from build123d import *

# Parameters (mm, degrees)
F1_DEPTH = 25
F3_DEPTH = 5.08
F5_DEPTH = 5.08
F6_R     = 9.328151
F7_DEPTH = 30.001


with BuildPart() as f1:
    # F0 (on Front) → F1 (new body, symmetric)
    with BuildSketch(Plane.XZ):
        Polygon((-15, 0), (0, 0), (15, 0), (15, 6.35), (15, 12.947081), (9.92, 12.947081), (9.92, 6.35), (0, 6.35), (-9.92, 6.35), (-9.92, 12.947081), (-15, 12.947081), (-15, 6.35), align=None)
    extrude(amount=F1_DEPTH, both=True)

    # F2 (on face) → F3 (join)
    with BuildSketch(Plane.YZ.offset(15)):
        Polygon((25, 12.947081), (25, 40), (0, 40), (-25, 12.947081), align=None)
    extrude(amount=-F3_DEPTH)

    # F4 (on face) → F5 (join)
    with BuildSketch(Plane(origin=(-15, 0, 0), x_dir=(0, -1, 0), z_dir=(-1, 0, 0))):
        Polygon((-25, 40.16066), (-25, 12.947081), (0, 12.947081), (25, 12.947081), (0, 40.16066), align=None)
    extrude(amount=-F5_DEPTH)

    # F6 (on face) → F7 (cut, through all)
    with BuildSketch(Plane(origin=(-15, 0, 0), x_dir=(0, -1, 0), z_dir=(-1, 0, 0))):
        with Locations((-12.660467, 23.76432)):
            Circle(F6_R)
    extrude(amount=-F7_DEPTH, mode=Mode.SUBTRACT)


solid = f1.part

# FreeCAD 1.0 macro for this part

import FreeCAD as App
import Part
import Sketcher

V = App.Vector

doc = App.newDocument("Part")
params = doc.addObject("Spreadsheet::Sheet", "Params")
for row, (alias, value) in enumerate([
    ("sketch1_width", "30 mm"),
    ("sketch1_width2", "5.08 mm"),
    ("pad1_length", "50 mm"),
    ("sketch2_width", "25 mm"),
    ("sketch2_width2", "50 mm"),
    ("pad2_length", "5.08 mm"),
    ("sketch3_width", "50 mm"),
    ("sketch3_width2", "25 mm"),
    ("pad3_length", "5.08 mm"),
], start=1):
    params.set(f"A{row}", alias)
    params.set(f"B{row}", "=" + value)
    params.setAlias(f"B{row}", alias)

body = doc.addObject("PartDesign::Body", "Body")

# Sketch on XZ plane
sketch1 = doc.addObject("Sketcher::SketchObject", "Sketch")
body.addObject(sketch1)
sketch1.AttachmentSupport = (doc.XZ_Plane, [""])
sketch1.MapMode = "FlatFace"
sketch1.addGeometry([
    Part.LineSegment(V(-15, 0, 0), V(15, 0, 0)),  # 0
    Part.LineSegment(V(15, 0, 0), V(15, 13, 0)),  # 1
    Part.LineSegment(V(15, 13, 0), V(10, 13, 0)),  # 2
    Part.LineSegment(V(10, 13, 0), V(10, 6, 0)),  # 3
    Part.LineSegment(V(10, 6, 0), V(-10, 6, 0)),  # 4
    Part.LineSegment(V(-10, 6, 0), V(-10, 13, 0)),  # 5
    Part.LineSegment(V(-10, 13, 0), V(-15, 13, 0)),  # 6
    Part.LineSegment(V(-15, 13, 0), V(-15, 0, 0)),  # 7
], False)
sketch1.addConstraint([
    Sketcher.Constraint("Coincident", 0, 2, 1, 1),
    Sketcher.Constraint("Coincident", 1, 2, 2, 1),
    Sketcher.Constraint("Coincident", 2, 2, 3, 1),
    Sketcher.Constraint("Coincident", 3, 2, 4, 1),
    Sketcher.Constraint("Coincident", 4, 2, 5, 1),
    Sketcher.Constraint("Coincident", 5, 2, 6, 1),
    Sketcher.Constraint("Coincident", 6, 2, 7, 1),
    Sketcher.Constraint("Coincident", 7, 2, 0, 1),
    Sketcher.Constraint("Horizontal", 0),
    Sketcher.Constraint("Vertical", 1),
    Sketcher.Constraint("Horizontal", 2),
    Sketcher.Constraint("Vertical", 3),
    Sketcher.Constraint("Horizontal", 4),
    Sketcher.Constraint("Vertical", 5),
    Sketcher.Constraint("Horizontal", 6),
    Sketcher.Constraint("Vertical", 7),
    Sketcher.Constraint("Symmetric", 0, 2, 7, 2, -1, 1),
    Sketcher.Constraint("Symmetric", 2, 2, 5, 2, -2),
    Sketcher.Constraint("DistanceX", 0, 1, 0, 2, 30.0),
    Sketcher.Constraint("DistanceX", 2, 2, 2, 1, 5.08),
    Sketcher.Constraint("DistanceY", -1, 1, 3, 2, 6.35),
    Sketcher.Constraint("DistanceY", 1, 1, 1, 2, 12.947081),
])
sketch1.setExpression("Constraints[18]", "Params.sketch1_width")
sketch1.setExpression("Constraints[19]", "Params.sketch1_width2")
pad1 = doc.addObject("PartDesign::Pad", "Pad")
body.addObject(pad1)
pad1.Profile = sketch1
pad1.setExpression("Length", "Params.pad1_length")
pad1.Midplane = True

# Sketch on YZ plane
sketch2 = doc.addObject("Sketcher::SketchObject", "Sketch001")
body.addObject(sketch2)
sketch2.AttachmentSupport = (doc.YZ_Plane, [""])
sketch2.MapMode = "FlatFace"
sketch2.AttachmentOffset = App.Placement(V(0, 0, 15), App.Rotation())
sketch2.addGeometry([
    Part.LineSegment(V(25, 13, 0), V(25, 40, 0)),
    Part.LineSegment(V(25, 40, 0), V(0, 40, 0)),
    Part.LineSegment(V(0, 40, 0), V(-25, 13, 0)),
    Part.LineSegment(V(-25, 13, 0), V(25, 13, 0)),
], False)
sketch2.addConstraint([
    Sketcher.Constraint("Coincident", 0, 2, 1, 1),
    Sketcher.Constraint("Coincident", 1, 2, 2, 1),
    Sketcher.Constraint("Coincident", 2, 2, 3, 1),
    Sketcher.Constraint("Coincident", 3, 2, 0, 1),
    Sketcher.Constraint("Vertical", 0),
    Sketcher.Constraint("Horizontal", 1),
    Sketcher.Constraint("Horizontal", 3),
    Sketcher.Constraint("PointOnObject", 1, 2, -2),
    Sketcher.Constraint("DistanceX", 1, 2, 1, 1, 25.0),
    Sketcher.Constraint("DistanceX", 3, 1, 3, 2, 50.0),
    Sketcher.Constraint("DistanceY", -1, 1, 0, 2, 40.0),
    Sketcher.Constraint("DistanceY", 0, 1, 0, 2, 27.052919),
])
sketch2.setExpression("Constraints[8]", "Params.sketch2_width")
sketch2.setExpression("Constraints[9]", "Params.sketch2_width2")
pad2 = doc.addObject("PartDesign::Pad", "Pad001")
body.addObject(pad2)
pad2.Profile = sketch2
pad2.setExpression("Length", "Params.pad2_length")
pad2.Reversed = True

# Sketch on YZ plane
sketch3 = doc.addObject("Sketcher::SketchObject", "Sketch002")
body.addObject(sketch3)
sketch3.AttachmentSupport = (doc.YZ_Plane, [""])
sketch3.MapMode = "FlatFace"
sketch3.AttachmentOffset = App.Placement(V(0, 0, -15), App.Rotation())
sketch3.addGeometry([
    Part.LineSegment(V(25, 40, 0), V(25, 13, 0)),
    Part.LineSegment(V(25, 13, 0), V(-25, 13, 0)),
    Part.LineSegment(V(-25, 13, 0), V(0, 40, 0)),
    Part.LineSegment(V(0, 40, 0), V(25, 40, 0)),
], False)
sketch3.addConstraint([
    Sketcher.Constraint("Coincident", 0, 2, 1, 1),
    Sketcher.Constraint("Coincident", 1, 2, 2, 1),
    Sketcher.Constraint("Coincident", 2, 2, 3, 1),
    Sketcher.Constraint("Coincident", 3, 2, 0, 1),
    Sketcher.Constraint("Vertical", 0),
    Sketcher.Constraint("Horizontal", 1),
    Sketcher.Constraint("Horizontal", 3),
    Sketcher.Constraint("PointOnObject", 2, 2, -2),
    Sketcher.Constraint("DistanceX", 1, 2, 1, 1, 50.0),
    Sketcher.Constraint("DistanceX", 3, 1, 3, 2, 25.0),
    Sketcher.Constraint("DistanceY", 0, 2, 0, 1, 27.213579),
    Sketcher.Constraint("DistanceY", -1, 1, 0, 2, 12.947081),
])
sketch3.setExpression("Constraints[8]", "Params.sketch3_width")
sketch3.setExpression("Constraints[9]", "Params.sketch3_width2")
pad3 = doc.addObject("PartDesign::Pad", "Pad002")
body.addObject(pad3)
pad3.Profile = sketch3
pad3.setExpression("Length", "Params.pad3_length")

# Sketch on YZ plane
sketch4 = doc.addObject("Sketcher::SketchObject", "Sketch003")
body.addObject(sketch4)
sketch4.AttachmentSupport = (doc.YZ_Plane, [""])
sketch4.MapMode = "FlatFace"
sketch4.AttachmentOffset = App.Placement(V(0, 0, -15), App.Rotation())
sketch4.addGeometry(Part.Circle(V(13, 24, 0), V(0, 0, 1), 9), False)
sketch4.addConstraint([
    Sketcher.Constraint("Diameter", 0, 18.656302),
    Sketcher.Constraint("DistanceY", -1, 1, 0, 3, 23.76432),
    Sketcher.Constraint("DistanceX", -1, 1, 0, 3, 12.660467),
])
pocket1 = doc.addObject("PartDesign::Pocket", "Pocket")
body.addObject(pocket1)
pocket1.Profile = sketch4
pocket1.Type = "ThroughAll"
pocket1.Reversed = True

doc.recompute()
